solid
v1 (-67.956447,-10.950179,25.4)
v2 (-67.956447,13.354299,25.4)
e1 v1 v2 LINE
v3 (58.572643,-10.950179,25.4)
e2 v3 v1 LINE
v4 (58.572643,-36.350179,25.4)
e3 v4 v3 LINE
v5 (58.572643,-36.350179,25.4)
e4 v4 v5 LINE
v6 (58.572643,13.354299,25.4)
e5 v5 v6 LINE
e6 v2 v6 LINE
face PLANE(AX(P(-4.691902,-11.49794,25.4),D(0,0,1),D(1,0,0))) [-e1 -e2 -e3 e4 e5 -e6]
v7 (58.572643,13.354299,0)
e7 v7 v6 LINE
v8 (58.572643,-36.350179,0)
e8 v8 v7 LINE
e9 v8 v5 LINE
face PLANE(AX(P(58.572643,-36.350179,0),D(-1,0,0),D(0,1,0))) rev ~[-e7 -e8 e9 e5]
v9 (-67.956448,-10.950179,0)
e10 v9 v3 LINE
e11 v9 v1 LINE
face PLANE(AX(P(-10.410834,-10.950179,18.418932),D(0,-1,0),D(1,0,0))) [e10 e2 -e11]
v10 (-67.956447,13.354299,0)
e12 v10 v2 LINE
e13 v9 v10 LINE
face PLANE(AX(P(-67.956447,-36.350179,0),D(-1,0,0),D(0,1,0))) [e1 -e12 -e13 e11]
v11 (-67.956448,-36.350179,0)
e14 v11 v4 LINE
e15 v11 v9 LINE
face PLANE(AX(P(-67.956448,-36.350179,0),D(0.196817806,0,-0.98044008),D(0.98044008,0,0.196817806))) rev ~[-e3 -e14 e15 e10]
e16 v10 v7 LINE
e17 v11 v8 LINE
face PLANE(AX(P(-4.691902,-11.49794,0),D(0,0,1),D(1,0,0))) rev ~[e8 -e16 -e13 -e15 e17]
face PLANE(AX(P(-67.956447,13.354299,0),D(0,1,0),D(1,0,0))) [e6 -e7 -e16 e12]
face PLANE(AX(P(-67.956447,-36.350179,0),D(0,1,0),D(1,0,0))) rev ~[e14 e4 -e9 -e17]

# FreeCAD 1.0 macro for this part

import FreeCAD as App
import Part
import Sketcher
from FreeCAD import Vector
Q = App.Units.Quantity

doc = App.newDocument("Part")
body = doc.addObject("PartDesign::Body", "Body")

sketch1 = body.newObject("Sketcher::SketchObject", "Sketch")
sketch1.AttachmentSupport = (doc.getObject("XY_Plane"), [""])
sketch1.MapMode = "FlatFace"
sketch1.addGeometry(Part.LineSegment(Vector(-68, 13, 0), Vector(-68, -36, 0)), False)
sketch1.addGeometry(Part.LineSegment(Vector(-68, -36, 0), Vector(59, -36, 0)), False)
sketch1.addGeometry(Part.LineSegment(Vector(59, -36, 0), Vector(59, 13, 0)), False)
sketch1.addGeometry(Part.LineSegment(Vector(59, 13, 0), Vector(-68, 13, 0)), False)
sketch1.addConstraint(Sketcher.Constraint("Coincident", 0, 2, 1, 1))
sketch1.addConstraint(Sketcher.Constraint("Coincident", 1, 2, 2, 1))
sketch1.addConstraint(Sketcher.Constraint("Coincident", 2, 2, 3, 1))
sketch1.addConstraint(Sketcher.Constraint("Coincident", 3, 2, 0, 1))
sketch1.addConstraint(Sketcher.Constraint("Vertical", 0))
sketch1.addConstraint(Sketcher.Constraint("Horizontal", 1))
sketch1.addConstraint(Sketcher.Constraint("Vertical", 2))
sketch1.addConstraint(Sketcher.Constraint("Horizontal", 3))
sketch1.addConstraint(Sketcher.Constraint("DistanceX", 1, 1, 1, 2, Q("126.529091 mm")))
sketch1.addConstraint(Sketcher.Constraint("DistanceY", -1, 1, 2, 2, Q("13.354299 mm")))
sketch1.addConstraint(Sketcher.Constraint("DistanceY", 0, 2, 0, 1, Q("49.704478 mm")))
sketch1.addConstraint(Sketcher.Constraint("DistanceX", 0, 2, -1, 1, Q("67.956447 mm")))
pad1 = body.newObject("PartDesign::Pad", "Pad")
pad1.Profile = sketch1
pad1.Length = Q("1 in")

sketch2 = body.newObject("Sketcher::SketchObject", "Sketch001")
sketch2.AttachmentSupport = (doc.getObject("XZ_Plane"), [""])
sketch2.MapMode = "FlatFace"
sketch2.AttachmentOffset = App.Placement(Vector(0, 0, 36.350179), App.Rotation())
sketch2.addGeometry(Part.LineSegment(Vector(-68, 0, 0), Vector(59, 25, 0)), False)
sketch2.addGeometry(Part.LineSegment(Vector(59, 25, 0), Vector(-68, 25, 0)), False)
sketch2.addGeometry(Part.LineSegment(Vector(-68, 25, 0), Vector(-68, 0, 0)), False)
sketch2.addConstraint(Sketcher.Constraint("Coincident", 0, 2, 1, 1))
sketch2.addConstraint(Sketcher.Constraint("Coincident", 1, 2, 2, 1))
sketch2.addConstraint(Sketcher.Constraint("Coincident", 2, 2, 0, 1))
sketch2.addConstraint(Sketcher.Constraint("Horizontal", 1))
sketch2.addConstraint(Sketcher.Constraint("Vertical", 2))
sketch2.addConstraint(Sketcher.Constraint("PointOnObject", 2, 2, -1))
sketch2.addConstraint(Sketcher.Constraint("DistanceY", 2, 2, 2, 1, Q("1 in")))
sketch2.addConstraint(Sketcher.Constraint("DistanceX", 1, 2, 1, 1, Q("126.529091 mm")))
sketch2.addConstraint(Sketcher.Constraint("DistanceX", -1, 1, 0, 2, Q("58.572643 mm")))
pocket1 = body.newObject("PartDesign::Pocket", "Pocket")
pocket1.Profile = sketch2
pocket1.Length = Q("1 in")

doc.recompute()
